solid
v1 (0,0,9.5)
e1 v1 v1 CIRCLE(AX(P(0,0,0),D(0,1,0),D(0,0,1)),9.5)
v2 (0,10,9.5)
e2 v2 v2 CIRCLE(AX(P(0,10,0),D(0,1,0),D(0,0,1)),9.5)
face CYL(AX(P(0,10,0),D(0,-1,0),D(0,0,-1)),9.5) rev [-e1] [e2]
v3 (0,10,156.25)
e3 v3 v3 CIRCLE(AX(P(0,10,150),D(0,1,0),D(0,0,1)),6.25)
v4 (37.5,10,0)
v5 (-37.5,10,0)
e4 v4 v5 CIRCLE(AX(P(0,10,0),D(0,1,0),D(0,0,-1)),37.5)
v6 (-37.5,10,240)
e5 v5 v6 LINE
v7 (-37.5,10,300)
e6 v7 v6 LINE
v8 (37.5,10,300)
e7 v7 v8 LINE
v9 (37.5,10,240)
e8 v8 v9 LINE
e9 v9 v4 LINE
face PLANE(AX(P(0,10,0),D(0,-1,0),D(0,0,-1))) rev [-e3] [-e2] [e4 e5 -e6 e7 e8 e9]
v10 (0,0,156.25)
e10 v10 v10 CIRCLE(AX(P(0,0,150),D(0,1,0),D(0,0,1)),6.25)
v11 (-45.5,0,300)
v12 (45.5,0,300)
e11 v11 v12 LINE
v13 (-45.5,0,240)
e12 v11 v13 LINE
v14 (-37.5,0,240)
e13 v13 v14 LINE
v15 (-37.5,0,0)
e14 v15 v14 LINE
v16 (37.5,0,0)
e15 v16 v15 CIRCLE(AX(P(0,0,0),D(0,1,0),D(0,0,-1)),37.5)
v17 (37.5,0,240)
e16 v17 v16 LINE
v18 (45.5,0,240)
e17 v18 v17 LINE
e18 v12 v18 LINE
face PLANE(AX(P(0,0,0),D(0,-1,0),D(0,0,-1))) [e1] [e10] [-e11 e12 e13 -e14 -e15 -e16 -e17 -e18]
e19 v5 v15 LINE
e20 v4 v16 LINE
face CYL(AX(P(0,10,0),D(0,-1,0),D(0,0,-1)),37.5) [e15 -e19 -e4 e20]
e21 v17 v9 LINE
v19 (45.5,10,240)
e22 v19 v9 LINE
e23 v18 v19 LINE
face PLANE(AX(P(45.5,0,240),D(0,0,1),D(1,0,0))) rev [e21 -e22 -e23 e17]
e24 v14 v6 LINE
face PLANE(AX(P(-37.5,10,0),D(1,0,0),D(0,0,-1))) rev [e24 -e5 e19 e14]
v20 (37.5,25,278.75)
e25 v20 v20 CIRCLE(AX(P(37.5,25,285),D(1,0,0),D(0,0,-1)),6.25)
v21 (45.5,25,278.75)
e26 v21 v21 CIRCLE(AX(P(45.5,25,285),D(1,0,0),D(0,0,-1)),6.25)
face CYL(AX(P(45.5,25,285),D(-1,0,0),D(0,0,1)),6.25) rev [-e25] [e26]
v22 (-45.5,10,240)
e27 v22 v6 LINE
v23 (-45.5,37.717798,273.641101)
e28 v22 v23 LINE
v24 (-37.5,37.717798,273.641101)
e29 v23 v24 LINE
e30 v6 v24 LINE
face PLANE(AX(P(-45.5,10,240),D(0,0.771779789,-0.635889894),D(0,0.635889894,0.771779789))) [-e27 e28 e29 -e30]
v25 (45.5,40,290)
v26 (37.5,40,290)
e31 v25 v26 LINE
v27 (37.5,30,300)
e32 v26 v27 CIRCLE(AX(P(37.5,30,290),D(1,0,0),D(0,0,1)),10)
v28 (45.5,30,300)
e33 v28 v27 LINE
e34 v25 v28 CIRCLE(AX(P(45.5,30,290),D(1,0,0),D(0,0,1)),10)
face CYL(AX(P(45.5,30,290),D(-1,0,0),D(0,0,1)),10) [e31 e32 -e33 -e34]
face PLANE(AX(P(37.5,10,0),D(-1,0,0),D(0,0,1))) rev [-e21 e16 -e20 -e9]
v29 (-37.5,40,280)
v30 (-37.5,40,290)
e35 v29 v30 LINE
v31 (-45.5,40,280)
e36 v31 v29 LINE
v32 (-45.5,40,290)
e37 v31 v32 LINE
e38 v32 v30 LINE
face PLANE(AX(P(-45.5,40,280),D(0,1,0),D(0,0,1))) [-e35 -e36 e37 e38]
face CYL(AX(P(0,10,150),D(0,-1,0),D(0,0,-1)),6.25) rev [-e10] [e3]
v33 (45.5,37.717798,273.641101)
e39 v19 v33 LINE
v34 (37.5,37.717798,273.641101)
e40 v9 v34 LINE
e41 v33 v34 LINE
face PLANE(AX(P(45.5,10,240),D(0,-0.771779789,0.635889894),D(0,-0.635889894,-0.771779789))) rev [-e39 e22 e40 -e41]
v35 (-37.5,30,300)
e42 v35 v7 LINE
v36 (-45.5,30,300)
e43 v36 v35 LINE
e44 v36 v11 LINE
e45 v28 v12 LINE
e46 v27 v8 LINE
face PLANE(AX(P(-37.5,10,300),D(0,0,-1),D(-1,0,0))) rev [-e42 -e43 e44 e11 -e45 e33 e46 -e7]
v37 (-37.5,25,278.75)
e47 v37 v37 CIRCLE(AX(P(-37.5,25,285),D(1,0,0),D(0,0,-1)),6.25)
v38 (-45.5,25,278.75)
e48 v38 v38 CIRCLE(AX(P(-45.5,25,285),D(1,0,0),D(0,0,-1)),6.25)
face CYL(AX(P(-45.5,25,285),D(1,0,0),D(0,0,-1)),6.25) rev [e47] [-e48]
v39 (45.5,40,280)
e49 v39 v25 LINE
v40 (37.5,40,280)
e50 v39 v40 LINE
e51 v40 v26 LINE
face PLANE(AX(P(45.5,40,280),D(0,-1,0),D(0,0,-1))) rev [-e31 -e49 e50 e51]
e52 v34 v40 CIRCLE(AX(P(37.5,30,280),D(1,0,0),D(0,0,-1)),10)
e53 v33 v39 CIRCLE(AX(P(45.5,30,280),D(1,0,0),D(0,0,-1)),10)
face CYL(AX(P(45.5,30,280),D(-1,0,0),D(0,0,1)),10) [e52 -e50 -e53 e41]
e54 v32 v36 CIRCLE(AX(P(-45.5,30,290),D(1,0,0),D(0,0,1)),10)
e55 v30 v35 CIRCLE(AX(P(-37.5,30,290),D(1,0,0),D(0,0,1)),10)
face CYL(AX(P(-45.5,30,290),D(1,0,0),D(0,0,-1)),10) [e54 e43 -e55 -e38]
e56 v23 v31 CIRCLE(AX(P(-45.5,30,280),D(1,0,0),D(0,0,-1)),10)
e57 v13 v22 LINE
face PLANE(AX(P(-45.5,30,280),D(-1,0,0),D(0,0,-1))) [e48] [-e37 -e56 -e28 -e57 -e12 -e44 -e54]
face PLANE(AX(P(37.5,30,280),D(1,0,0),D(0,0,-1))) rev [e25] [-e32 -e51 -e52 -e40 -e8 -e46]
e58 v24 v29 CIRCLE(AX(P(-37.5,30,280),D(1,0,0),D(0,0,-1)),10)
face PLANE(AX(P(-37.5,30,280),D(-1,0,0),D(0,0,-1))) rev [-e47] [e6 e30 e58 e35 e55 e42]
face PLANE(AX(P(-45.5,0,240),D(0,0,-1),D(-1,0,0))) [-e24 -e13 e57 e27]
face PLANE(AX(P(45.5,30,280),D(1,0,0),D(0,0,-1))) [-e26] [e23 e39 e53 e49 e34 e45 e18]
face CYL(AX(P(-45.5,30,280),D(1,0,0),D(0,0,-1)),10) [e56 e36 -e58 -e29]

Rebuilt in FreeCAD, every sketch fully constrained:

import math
import FreeCAD as App
import Part
import Sketcher

V = App.Vector

doc = App.newDocument("Part")
body = doc.addObject("PartDesign::Body", "Body")

sketch1 = body.newObject("Sketcher::SketchObject", "Sketch")
sketch1.AttachmentSupport = (doc.getObject("XZ_Plane"), [""])
sketch1.MapMode = "FlatFace"
sketch1.addGeometry([
    Part.LineSegment(V(-38, 0, 0), V(-38, 300, 0)),
    Part.LineSegment(V(-38, 300, 0), V(38, 300, 0)),
    Part.LineSegment(V(38, 300, 0), V(38, 0, 0)),
    Part.ArcOfCircle(Part.Circle(V(0, 0, 0), V(0, 0, 1), 38), math.radians(180), math.radians(360)),
    Part.Circle(V(0, 150, 0), V(0, 0, 1), 6),
    Part.Circle(V(0, 0, 0), V(0, 0, 1), 10),
], False)
sketch1.addConstraint([
    Sketcher.Constraint("Coincident", 0, 2, 1, 1),
    Sketcher.Constraint("Coincident", 1, 2, 2, 1),
    Sketcher.Constraint("Tangent", 2, 2, 3, 2),
    Sketcher.Constraint("Tangent", 3, 1, 0, 1),
    Sketcher.Constraint("Vertical", 0),
    Sketcher.Constraint("Horizontal", 1),
    Sketcher.Constraint("Vertical", 2),
    Sketcher.Constraint("Coincident", 3, 3, -1, 1),
    Sketcher.Constraint("Coincident", 5, 3, -1, 1),
    Sketcher.Constraint("PointOnObject", 4, 3, -2),
    Sketcher.Constraint("Diameter", 5, 19.0),
    Sketcher.Constraint("Diameter", 4, 12.5),
    Sketcher.Constraint("Radius", 3, 37.5),
    Sketcher.Constraint("DistanceY", 0, 1, 0, 2, 300.0),
    Sketcher.Constraint("DistanceY", -1, 1, 4, 3, 150.0),
])
pad1 = body.newObject("PartDesign::Pad", "Pad")
pad1.Profile = sketch1
pad1.Length = 10
pad1.Reversed = True

sketch2 = body.newObject("Sketcher::SketchObject", "Sketch001")
sketch2.AttachmentSupport = (doc.getObject("YZ_Plane"), [""])
sketch2.MapMode = "FlatFace"
sketch2.AttachmentOffset = App.Placement(V(0, 0, 37.5), App.Rotation())
sketch2.addGeometry([
    Part.LineSegment(V(0, 240, 0), V(10, 240, 0)),
    Part.LineSegment(V(10, 240, 0), V(38, 274, 0)),
    Part.ArcOfCircle(Part.Circle(V(30, 280, 0), V(0, 0, 1), 10), math.radians(-39), math.radians(0)),
    Part.LineSegment(V(40, 280, 0), V(40, 290, 0)),
    Part.ArcOfCircle(Part.Circle(V(30, 290, 0), V(0, 0, 1), 10), math.radians(0), math.radians(90)),
    Part.LineSegment(V(30, 300, 0), V(0, 300, 0)),
    Part.LineSegment(V(0, 300, 0), V(0, 240, 0)),
    Part.Circle(V(25, 285, 0), V(0, 0, 1), 6),
], False)
sketch2.addConstraint([
    Sketcher.Constraint("Coincident", 0, 2, 1, 1),
    Sketcher.Constraint("Tangent", 1, 2, 2, 1),
    Sketcher.Constraint("Tangent", 2, 2, 3, 1),
    Sketcher.Constraint("Tangent", 3, 2, 4, 1),
    Sketcher.Constraint("Tangent", 4, 2, 5, 1),
    Sketcher.Constraint("Coincident", 5, 2, 6, 1),
    Sketcher.Constraint("Coincident", 6, 2, 0, 1),
    Sketcher.Constraint("Horizontal", 0),
    Sketcher.Constraint("Vertical", 3),
    Sketcher.Constraint("Horizontal", 5),
    Sketcher.Constraint("Vertical", 6),
    Sketcher.Constraint("Equal", 2, 4),
    Sketcher.Constraint("PointOnObject", 5, 2, -2),
    Sketcher.Constraint("Equal", 0, 3),
    Sketcher.Constraint("Radius", 2, 10.0),
    Sketcher.Constraint("Diameter", 7, 12.5),
    Sketcher.Constraint("DistanceX", 0, 1, 0, 2, 10.0),
    Sketcher.Constraint("DistanceX", 5, 2, 5, 1, 30.0),
    Sketcher.Constraint("DistanceY", 6, 2, 6, 1, 60.0),
    Sketcher.Constraint("DistanceY", -1, 1, 2, 3, 280.0),
    Sketcher.Constraint("DistanceX", -1, 1, 7, 3, 25.0),
    Sketcher.Constraint("DistanceY", -1, 1, 7, 3, 285.0),
])
pad2 = body.newObject("PartDesign::Pad", "Pad001")
pad2.Profile = sketch2
pad2.Length = 8
doc.recompute()

mirrored = body.newObject("PartDesign::Mirrored", "Mirrored")
mirrored.Originals = [pad2]
mirrored.MirrorPlane = (doc.getObject("YZ_Plane"), [""])
body.Tip = mirrored

doc.recompute()
